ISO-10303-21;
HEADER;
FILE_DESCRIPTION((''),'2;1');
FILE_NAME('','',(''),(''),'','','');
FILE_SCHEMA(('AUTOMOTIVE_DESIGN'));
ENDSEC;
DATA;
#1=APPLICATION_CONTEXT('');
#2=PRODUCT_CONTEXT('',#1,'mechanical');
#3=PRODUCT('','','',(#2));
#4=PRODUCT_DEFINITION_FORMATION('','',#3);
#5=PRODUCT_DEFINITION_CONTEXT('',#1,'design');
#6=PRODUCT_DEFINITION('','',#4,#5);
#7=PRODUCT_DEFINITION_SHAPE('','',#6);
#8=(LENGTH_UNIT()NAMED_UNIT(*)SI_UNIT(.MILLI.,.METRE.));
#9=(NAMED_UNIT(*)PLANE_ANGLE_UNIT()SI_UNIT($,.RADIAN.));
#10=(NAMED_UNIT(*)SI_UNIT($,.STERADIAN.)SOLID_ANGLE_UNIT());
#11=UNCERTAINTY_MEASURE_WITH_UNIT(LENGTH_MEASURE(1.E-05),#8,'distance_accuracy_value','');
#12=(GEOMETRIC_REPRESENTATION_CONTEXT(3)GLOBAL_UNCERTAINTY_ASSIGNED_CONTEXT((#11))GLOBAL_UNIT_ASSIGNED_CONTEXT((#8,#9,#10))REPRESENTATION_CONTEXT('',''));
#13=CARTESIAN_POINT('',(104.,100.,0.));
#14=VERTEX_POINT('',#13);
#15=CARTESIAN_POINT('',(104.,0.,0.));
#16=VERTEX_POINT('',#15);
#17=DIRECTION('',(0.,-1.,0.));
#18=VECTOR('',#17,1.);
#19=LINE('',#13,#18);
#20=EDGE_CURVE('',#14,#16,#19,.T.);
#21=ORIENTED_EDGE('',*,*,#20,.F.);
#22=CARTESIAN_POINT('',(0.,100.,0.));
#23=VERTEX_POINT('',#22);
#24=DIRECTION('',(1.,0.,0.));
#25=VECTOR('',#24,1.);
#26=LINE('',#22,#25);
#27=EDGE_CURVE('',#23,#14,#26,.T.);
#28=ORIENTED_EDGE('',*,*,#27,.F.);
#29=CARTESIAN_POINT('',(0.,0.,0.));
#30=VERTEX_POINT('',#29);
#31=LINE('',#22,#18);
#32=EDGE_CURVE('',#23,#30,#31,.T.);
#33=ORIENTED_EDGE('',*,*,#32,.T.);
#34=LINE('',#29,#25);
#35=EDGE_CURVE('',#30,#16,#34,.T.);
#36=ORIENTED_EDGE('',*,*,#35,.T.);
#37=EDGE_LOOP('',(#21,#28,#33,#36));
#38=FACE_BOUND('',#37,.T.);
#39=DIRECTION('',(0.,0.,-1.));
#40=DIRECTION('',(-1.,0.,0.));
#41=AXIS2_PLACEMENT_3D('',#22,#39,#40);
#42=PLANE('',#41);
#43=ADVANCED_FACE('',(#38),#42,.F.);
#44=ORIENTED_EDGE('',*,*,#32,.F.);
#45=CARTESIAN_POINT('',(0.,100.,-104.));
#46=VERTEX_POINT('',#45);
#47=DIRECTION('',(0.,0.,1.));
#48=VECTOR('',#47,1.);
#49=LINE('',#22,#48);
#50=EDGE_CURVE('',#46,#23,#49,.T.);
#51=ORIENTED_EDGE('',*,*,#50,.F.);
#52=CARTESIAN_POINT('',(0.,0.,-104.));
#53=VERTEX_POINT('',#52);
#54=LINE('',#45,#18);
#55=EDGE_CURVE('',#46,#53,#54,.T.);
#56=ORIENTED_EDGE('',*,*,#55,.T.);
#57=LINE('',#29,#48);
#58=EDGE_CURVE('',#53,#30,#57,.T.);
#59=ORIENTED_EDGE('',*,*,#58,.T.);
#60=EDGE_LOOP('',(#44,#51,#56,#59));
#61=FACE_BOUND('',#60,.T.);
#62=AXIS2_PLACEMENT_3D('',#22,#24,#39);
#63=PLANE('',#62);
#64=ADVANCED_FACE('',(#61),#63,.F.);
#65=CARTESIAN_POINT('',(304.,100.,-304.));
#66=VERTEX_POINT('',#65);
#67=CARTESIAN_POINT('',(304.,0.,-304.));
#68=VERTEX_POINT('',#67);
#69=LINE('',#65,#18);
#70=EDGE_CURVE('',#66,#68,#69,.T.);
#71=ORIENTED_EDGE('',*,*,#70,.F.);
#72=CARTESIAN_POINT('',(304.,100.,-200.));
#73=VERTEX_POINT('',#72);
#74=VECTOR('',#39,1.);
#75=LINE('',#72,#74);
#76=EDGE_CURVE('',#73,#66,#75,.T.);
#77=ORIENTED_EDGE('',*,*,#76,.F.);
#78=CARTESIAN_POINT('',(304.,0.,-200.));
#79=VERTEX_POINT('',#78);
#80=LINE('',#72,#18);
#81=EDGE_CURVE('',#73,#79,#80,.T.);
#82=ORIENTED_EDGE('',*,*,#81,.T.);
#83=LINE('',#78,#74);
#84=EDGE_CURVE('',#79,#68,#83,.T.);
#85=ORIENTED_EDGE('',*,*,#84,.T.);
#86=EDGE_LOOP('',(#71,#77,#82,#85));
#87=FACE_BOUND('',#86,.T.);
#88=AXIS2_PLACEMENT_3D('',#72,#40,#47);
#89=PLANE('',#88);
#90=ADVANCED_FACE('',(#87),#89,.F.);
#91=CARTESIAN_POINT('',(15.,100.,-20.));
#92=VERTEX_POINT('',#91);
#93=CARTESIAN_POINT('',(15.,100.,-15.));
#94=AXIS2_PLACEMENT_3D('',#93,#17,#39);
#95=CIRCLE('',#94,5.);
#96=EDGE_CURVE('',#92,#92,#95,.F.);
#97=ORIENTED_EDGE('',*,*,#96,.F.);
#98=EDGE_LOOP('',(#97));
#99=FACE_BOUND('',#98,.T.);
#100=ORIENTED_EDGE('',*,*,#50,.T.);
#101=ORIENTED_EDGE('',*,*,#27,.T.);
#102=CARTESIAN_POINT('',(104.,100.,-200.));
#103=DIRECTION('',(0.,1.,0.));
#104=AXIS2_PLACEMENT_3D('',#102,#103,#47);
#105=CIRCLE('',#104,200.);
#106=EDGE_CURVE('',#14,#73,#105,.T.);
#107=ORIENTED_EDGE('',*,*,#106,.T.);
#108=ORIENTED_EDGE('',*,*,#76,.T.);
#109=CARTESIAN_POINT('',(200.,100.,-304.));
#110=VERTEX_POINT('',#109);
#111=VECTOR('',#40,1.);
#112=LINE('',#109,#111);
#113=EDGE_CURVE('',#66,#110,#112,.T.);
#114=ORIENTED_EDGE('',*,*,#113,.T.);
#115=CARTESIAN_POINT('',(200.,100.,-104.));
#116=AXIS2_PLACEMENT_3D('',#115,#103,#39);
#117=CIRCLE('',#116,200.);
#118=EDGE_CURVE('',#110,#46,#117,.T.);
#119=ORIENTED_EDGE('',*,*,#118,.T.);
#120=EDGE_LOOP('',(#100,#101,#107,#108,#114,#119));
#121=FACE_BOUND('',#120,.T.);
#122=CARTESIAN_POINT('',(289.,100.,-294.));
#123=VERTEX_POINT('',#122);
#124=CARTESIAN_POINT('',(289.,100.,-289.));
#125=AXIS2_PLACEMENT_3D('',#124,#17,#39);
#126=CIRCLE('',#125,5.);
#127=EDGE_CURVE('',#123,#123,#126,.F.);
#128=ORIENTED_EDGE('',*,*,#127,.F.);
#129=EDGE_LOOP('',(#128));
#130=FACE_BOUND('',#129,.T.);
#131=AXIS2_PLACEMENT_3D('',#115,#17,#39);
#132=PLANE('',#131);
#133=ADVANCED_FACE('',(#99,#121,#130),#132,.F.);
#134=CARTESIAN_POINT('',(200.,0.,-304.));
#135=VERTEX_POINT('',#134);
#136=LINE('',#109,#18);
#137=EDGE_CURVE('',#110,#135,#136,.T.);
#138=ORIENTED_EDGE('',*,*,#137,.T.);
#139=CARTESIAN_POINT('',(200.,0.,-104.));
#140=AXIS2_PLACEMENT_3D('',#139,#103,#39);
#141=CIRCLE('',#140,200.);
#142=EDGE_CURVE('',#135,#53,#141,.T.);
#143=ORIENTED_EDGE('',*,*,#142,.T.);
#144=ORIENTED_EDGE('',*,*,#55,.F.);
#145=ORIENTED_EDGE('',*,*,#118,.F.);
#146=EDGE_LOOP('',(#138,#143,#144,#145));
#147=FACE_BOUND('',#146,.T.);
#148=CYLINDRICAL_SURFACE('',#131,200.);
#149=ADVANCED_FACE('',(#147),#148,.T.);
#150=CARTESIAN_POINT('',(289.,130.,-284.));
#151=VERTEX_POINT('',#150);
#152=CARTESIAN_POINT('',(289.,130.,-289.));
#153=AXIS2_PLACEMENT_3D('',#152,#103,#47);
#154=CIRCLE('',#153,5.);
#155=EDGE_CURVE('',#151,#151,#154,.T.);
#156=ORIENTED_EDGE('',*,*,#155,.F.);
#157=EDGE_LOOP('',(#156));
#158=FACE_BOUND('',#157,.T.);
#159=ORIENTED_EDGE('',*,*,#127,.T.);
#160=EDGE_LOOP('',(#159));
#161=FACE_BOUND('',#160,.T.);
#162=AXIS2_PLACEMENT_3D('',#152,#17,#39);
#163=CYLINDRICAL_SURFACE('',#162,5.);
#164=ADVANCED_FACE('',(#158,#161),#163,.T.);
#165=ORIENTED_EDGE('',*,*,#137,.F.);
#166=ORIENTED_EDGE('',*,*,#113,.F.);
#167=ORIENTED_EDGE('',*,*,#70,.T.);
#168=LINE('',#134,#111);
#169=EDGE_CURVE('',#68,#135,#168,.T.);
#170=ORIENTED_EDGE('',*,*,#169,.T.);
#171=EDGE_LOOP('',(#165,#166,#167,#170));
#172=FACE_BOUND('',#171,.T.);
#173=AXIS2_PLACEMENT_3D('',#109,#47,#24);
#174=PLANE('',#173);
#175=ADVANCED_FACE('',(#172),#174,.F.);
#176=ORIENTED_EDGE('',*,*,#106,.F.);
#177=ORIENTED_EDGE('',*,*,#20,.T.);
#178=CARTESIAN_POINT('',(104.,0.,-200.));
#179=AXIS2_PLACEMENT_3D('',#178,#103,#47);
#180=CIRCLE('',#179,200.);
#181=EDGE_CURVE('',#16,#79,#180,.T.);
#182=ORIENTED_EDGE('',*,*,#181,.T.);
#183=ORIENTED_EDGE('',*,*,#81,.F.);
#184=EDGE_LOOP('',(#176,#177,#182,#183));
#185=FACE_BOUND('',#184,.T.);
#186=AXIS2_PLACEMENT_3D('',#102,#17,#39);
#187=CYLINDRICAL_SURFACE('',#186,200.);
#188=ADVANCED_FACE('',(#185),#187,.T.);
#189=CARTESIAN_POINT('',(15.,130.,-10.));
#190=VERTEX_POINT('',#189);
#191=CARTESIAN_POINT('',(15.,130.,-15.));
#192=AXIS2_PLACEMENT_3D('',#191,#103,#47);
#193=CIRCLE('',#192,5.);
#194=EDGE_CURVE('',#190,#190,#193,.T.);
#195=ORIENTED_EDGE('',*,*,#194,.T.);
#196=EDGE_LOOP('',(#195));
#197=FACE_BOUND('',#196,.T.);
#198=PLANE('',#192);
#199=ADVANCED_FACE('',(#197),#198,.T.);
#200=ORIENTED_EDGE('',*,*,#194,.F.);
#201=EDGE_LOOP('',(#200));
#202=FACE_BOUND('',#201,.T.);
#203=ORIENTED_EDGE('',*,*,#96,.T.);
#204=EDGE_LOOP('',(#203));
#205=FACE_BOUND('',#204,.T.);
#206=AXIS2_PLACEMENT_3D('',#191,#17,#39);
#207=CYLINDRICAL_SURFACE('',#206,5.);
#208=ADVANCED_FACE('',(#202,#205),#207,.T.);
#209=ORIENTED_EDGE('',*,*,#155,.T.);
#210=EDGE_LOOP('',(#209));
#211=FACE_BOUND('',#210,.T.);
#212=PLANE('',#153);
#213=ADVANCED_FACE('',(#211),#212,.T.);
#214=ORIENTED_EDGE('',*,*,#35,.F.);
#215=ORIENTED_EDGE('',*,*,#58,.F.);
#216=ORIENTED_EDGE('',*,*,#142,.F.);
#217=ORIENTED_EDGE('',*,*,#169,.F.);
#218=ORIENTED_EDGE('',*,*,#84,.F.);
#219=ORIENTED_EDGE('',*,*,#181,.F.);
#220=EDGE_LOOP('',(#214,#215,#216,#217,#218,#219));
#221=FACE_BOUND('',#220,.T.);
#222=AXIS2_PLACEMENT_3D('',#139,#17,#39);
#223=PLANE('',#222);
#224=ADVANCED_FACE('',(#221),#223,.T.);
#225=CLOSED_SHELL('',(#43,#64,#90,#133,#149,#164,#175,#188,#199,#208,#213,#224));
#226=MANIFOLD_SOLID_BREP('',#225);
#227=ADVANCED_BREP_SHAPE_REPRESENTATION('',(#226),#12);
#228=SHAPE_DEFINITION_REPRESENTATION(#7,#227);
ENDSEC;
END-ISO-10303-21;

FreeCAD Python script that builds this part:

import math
import FreeCAD as App
import Part
import Sketcher

V = App.Vector
Q = App.Units.Quantity

doc = App.newDocument("Part")
body = doc.addObject("PartDesign::Body", "Body")

sketch1 = body.newObject("Sketcher::SketchObject", "Sketch")
sketch1.AttachmentSupport = (doc.getObject("XZ_Plane"), [""])
sketch1.MapMode = "FlatFace"
sketch1.addGeometry([
    Part.LineSegment(V(0, 0, 0), V(104, 0, 0)),
    Part.ArcOfCircle(Part.Circle(V(104, -200, 0), V(0, 0, 1), 200), math.radians(0), math.radians(90)),
    Part.LineSegment(V(304, -200, 0), V(304, -304, 0)),
    Part.LineSegment(V(304, -304, 0), V(200, -304, 0)),
    Part.ArcOfCircle(Part.Circle(V(200, -104, 0), V(0, 0, 1), 200), math.radians(-180), math.radians(-90)),
    Part.LineSegment(V(0, -104, 0), V(0, 0, 0)),
], False)
sketch1.addConstraint([
    Sketcher.Constraint("Tangent", 0, 2, 1, 2),
    Sketcher.Constraint("Tangent", 1, 1, 2, 1),
    Sketcher.Constraint("Coincident", 2, 2, 3, 1),
    Sketcher.Constraint("Tangent", 3, 2, 4, 2),
    Sketcher.Constraint("Tangent", 4, 1, 5, 1),
    Sketcher.Constraint("Coincident", 5, 2, 0, 1),
    Sketcher.Constraint("Horizontal", 0),
    Sketcher.Constraint("Vertical", 2),
    Sketcher.Constraint("Horizontal", 3),
    Sketcher.Constraint("Vertical", 5),
    Sketcher.Constraint("Coincident", 5, 2, -1, 1),
    Sketcher.Constraint("Equal", 1, 4),
    Sketcher.Constraint("Equal", 3, 2),
    Sketcher.Constraint("Radius", 1, Q("200 mm")),
    Sketcher.Constraint("DistanceX", 0, 1, 0, 2, Q("104 mm")),
])
pad1 = body.newObject("PartDesign::Pad", "Pad")
pad1.Profile = sketch1
pad1.Length = 100
pad1.Reversed = True

sketch2 = body.newObject("Sketcher::SketchObject", "Sketch001")
sketch2.AttachmentSupport = (doc.getObject("XZ_Plane"), [""])
sketch2.MapMode = "FlatFace"
sketch2.AttachmentOffset = App.Placement(V(0, 0, -100), App.Rotation())
sketch2.addGeometry([
    Part.Circle(V(15, -15, 0), V(0, 0, 1), 5),
    Part.Circle(V(289, -289, 0), V(0, 0, 1), 5),
], False)
sketch2.addConstraint([
    Sketcher.Constraint("Equal", 0, 1),
    Sketcher.Constraint("Diameter", 0, Q("10 mm")),
    Sketcher.Constraint("DistanceX", -1, 1, 0, 3, Q("15 mm")),
    Sketcher.Constraint("DistanceY", 0, 3, -1, 1, Q("15 mm")),
    Sketcher.Constraint("DistanceX", -1, 1, 1, 3, Q("289 mm")),
    Sketcher.Constraint("DistanceY", 1, 3, -1, 1, Q("289 mm")),
])
pad2 = body.newObject("PartDesign::Pad", "Pad001")
pad2.Profile = sketch2
pad2.Length = 30
pad2.Reversed = True

doc.recompute()
